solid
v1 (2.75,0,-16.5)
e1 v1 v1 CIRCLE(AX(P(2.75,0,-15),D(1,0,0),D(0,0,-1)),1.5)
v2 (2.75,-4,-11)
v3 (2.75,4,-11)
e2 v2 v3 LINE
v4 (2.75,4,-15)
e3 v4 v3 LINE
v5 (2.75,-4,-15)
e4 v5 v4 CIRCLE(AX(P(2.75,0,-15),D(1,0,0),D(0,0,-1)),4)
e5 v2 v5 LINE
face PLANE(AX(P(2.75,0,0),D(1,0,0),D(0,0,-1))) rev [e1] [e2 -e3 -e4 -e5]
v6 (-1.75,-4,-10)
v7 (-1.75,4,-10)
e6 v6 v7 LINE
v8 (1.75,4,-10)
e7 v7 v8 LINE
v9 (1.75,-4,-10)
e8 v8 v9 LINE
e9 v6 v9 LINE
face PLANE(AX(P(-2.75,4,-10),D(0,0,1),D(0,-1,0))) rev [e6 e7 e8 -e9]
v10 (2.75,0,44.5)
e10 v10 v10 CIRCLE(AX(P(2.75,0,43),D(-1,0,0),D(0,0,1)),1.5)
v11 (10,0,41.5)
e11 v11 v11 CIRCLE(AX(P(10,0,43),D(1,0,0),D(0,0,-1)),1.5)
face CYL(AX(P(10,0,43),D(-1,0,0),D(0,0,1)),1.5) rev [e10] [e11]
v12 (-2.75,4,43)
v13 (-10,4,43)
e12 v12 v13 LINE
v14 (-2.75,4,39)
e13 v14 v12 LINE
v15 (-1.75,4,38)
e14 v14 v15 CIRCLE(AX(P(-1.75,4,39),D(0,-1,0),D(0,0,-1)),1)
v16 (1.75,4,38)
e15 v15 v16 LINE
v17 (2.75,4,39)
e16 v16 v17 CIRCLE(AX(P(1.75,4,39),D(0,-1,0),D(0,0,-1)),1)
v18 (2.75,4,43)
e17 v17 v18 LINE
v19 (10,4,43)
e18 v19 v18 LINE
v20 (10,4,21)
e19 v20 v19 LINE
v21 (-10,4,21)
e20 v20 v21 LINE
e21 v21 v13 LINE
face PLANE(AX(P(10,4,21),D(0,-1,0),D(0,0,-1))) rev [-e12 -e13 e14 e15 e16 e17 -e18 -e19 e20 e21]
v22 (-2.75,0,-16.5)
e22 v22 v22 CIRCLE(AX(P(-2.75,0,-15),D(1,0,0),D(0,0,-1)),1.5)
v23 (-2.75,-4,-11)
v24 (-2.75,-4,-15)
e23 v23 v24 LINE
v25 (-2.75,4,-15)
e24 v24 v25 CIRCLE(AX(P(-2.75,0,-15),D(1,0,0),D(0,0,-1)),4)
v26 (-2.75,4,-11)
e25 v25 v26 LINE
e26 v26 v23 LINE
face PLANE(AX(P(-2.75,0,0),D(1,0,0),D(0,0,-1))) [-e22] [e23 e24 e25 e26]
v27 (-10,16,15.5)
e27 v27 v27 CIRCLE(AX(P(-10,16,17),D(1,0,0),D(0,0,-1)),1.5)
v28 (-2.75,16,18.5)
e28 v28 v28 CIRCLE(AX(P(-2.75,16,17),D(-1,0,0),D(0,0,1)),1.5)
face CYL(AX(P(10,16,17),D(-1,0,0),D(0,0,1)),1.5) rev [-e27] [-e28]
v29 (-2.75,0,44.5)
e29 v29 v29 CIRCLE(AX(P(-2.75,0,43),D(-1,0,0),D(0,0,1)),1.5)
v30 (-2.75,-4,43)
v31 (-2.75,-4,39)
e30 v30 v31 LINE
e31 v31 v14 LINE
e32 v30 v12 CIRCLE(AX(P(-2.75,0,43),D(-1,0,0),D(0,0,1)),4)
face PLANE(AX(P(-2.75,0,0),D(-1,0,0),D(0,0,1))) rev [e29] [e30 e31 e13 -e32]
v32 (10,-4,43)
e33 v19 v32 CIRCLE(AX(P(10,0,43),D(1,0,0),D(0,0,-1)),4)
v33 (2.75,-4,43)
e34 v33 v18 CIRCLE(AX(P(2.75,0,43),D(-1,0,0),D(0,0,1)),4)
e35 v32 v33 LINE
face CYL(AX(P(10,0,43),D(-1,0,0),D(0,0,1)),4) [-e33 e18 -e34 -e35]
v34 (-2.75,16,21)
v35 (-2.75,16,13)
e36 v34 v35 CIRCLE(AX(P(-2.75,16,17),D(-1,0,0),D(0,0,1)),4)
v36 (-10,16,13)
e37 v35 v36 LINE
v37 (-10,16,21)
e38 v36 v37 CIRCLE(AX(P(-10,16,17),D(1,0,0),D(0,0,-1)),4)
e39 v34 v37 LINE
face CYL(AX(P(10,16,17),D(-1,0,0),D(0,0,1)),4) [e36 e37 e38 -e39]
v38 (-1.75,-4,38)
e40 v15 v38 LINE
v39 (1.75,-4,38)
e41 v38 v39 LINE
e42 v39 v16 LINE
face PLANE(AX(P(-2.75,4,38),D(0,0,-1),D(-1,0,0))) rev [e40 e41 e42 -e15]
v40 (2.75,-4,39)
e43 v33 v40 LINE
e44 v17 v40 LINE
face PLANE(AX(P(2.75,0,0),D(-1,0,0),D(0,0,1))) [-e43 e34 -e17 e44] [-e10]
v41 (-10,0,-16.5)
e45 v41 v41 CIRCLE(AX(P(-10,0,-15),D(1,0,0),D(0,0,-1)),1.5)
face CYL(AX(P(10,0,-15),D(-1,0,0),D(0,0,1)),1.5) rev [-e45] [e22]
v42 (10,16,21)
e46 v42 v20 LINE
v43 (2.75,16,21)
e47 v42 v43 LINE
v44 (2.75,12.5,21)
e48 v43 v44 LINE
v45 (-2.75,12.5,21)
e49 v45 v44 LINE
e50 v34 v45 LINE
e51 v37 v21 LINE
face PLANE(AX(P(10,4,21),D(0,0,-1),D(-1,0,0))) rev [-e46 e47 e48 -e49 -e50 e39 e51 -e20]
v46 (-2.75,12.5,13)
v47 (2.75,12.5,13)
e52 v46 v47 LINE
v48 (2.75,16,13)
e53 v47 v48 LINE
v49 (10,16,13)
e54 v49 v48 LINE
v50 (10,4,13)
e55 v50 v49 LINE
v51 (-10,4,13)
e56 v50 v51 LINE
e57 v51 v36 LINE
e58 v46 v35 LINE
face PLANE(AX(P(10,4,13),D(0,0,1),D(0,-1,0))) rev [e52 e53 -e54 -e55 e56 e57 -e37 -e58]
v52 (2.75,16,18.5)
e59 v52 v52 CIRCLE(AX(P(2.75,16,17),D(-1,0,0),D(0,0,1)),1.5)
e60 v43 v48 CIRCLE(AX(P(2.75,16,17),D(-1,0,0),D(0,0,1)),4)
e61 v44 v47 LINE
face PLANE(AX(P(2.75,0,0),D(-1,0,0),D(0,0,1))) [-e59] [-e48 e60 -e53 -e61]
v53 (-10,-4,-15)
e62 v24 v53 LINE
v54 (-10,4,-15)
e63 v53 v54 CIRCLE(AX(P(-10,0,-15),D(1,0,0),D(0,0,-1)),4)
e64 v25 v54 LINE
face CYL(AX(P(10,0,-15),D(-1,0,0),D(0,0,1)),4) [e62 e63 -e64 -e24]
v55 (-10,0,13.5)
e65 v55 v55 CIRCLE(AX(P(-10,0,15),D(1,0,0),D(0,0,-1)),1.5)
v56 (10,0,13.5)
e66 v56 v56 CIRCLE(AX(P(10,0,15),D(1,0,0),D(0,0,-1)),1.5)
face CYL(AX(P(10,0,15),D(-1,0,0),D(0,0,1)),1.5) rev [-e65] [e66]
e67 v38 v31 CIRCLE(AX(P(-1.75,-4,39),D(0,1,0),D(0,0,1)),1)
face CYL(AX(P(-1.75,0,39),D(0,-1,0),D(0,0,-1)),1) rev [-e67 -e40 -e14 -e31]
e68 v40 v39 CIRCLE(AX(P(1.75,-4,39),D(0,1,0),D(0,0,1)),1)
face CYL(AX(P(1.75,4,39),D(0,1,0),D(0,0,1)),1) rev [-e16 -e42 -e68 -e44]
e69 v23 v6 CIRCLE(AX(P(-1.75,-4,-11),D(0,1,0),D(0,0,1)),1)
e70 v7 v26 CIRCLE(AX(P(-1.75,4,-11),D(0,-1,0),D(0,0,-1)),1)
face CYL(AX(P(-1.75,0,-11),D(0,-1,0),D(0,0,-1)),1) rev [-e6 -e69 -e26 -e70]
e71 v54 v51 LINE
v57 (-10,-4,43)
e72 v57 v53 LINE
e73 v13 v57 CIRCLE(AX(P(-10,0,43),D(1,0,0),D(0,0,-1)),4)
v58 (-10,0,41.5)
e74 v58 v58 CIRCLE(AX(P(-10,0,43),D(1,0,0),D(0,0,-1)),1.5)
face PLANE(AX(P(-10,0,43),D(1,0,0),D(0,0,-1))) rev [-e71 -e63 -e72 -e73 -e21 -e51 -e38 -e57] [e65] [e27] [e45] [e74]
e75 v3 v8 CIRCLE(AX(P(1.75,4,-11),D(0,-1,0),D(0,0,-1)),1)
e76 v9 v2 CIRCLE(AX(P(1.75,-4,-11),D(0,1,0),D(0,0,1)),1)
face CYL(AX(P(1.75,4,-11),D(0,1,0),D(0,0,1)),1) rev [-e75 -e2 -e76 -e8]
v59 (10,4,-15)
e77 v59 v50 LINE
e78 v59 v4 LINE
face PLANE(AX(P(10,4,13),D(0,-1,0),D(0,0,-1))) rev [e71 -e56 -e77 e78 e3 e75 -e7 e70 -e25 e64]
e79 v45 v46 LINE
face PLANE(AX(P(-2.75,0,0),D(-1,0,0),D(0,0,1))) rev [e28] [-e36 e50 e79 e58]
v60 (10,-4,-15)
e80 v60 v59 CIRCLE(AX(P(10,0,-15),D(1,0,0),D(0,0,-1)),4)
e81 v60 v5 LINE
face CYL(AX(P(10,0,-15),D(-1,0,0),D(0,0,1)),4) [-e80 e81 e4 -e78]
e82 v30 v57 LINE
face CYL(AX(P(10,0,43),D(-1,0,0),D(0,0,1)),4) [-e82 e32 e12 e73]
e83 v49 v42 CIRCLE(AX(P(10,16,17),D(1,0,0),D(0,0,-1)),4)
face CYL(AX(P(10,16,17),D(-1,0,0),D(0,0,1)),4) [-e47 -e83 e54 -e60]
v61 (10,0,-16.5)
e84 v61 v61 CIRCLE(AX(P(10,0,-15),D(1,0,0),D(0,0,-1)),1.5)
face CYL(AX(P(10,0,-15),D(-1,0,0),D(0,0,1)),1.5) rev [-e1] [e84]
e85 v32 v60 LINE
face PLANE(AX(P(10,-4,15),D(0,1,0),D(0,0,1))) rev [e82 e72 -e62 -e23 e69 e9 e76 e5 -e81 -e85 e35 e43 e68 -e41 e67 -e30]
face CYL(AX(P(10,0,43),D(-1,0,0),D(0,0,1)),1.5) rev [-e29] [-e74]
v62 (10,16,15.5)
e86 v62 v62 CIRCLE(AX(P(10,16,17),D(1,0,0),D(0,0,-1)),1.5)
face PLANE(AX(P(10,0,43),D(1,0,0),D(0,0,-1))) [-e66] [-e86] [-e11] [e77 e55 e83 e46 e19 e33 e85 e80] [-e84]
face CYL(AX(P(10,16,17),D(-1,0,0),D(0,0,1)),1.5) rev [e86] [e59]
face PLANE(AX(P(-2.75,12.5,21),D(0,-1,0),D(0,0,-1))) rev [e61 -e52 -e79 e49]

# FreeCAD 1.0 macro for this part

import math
import FreeCAD as App
import Part
import Sketcher
from FreeCAD import Vector
Q = App.Units.Quantity


def edges_at(feature, points):
    """Names of the edges that pass closest to the given points."""
    edges = feature.Shape.Edges
    near = lambda p: min(range(len(edges)), key=lambda i: edges[i].distToShape(Part.Vertex(*p))[0])
    return sorted({f"Edge{near(p) + 1}" for p in points})


def add_polygon(sketch, points):
    """Adds a closed chain of lines whose ends are joined by coincident constraints."""
    first, n = sketch.GeometryCount, len(points)
    for a, b in zip(points, points[1:] + points[:1]):
        sketch.addGeometry(Part.LineSegment(App.Vector(*a, 0), App.Vector(*b, 0)), False)
    for i in range(n):
        sketch.addConstraint(Sketcher.Constraint("Coincident", first + i, 2, first + (i + 1) % n, 1))

doc = App.newDocument("Part")
body = doc.addObject("PartDesign::Body", "Body")

# Sketch on YZ plane
sketch1 = body.newObject("Sketcher::SketchObject", "Sketch")
sketch1.AttachmentSupport = (doc.getObject("YZ_Plane"), [""])
sketch1.MapMode = "FlatFace"
sketch1.addGeometry([
    Part.ArcOfCircle(Part.Circle(Vector(0, -15, 0), Vector(0, 0, 1), 4), math.radians(180), math.radians(360)),  # 0
    Part.LineSegment(Vector(4, -15, 0), Vector(4, 13, 0)),  # 1
    Part.LineSegment(Vector(4, 13, 0), Vector(16, 13, 0)),  # 2
    Part.ArcOfCircle(Part.Circle(Vector(16, 17, 0), Vector(0, 0, 1), 4), math.radians(-90), math.radians(90)),  # 3
    Part.LineSegment(Vector(16, 21, 0), Vector(4, 21, 0)),  # 4
    Part.LineSegment(Vector(4, 21, 0), Vector(4, 43, 0)),  # 5
    Part.ArcOfCircle(Part.Circle(Vector(0, 43, 0), Vector(0, 0, 1), 4), math.radians(0), math.radians(180)),  # 6
    Part.LineSegment(Vector(-4, 43, 0), Vector(-4, -15, 0)),  # 7
    Part.Circle(Vector(0, 43, 0), Vector(0, 0, 1), 1.5),  # 8
    Part.Circle(Vector(0, 15, 0), Vector(0, 0, 1), 1.5),  # 9
    Part.Circle(Vector(0, -15, 0), Vector(0, 0, 1), 1.5),  # 10
    Part.Circle(Vector(16, 17, 0), Vector(0, 0, 1), 1.5),  # 11
], False)
sketch1.addConstraint([
    Sketcher.Constraint("Tangent", 0, 2, 1, 1),
    Sketcher.Constraint("Coincident", 1, 2, 2, 1),
    Sketcher.Constraint("Tangent", 2, 2, 3, 1),
    Sketcher.Constraint("Tangent", 3, 2, 4, 1),
    Sketcher.Constraint("Coincident", 4, 2, 5, 1),
    Sketcher.Constraint("Tangent", 5, 2, 6, 1),
    Sketcher.Constraint("Tangent", 6, 2, 7, 1),
    Sketcher.Constraint("Tangent", 7, 2, 0, 1),
    Sketcher.Constraint("Vertical", 1),
    Sketcher.Constraint("Horizontal", 2),
    Sketcher.Constraint("Horizontal", 4),
    Sketcher.Constraint("Vertical", 5),
    Sketcher.Constraint("Vertical", 7),
    Sketcher.Constraint("Coincident", 8, 3, 6, 3),
    Sketcher.Constraint("Coincident", 10, 3, 0, 3),
    Sketcher.Constraint("Coincident", 11, 3, 3, 3),
    Sketcher.Constraint("Equal", 0, 3),
    Sketcher.Constraint("Equal", 3, 6),
    Sketcher.Constraint("Equal", 8, 9),
    Sketcher.Constraint("Equal", 9, 10),
    Sketcher.Constraint("Equal", 10, 11),
    Sketcher.Constraint("Symmetric", 0, 3, 9, 3, -1, 1),
    Sketcher.Constraint("PointOnObject", 0, 3, -2),
    Sketcher.Constraint("Diameter", 8, Q("3 mm")),
    Sketcher.Constraint("Radius", 0, Q("4 mm")),
    Sketcher.Constraint("DistanceX", 2, 1, 2, 2, Q("12 mm")),
    Sketcher.Constraint("DistanceY", 1, 1, 1, 2, Q("28 mm")),
    Sketcher.Constraint("DistanceY", 5, 1, 5, 2, Q("22 mm")),
    Sketcher.Constraint("DistanceY", 0, 3, -1, 1, Q("15 mm")),
])
pad1 = body.newObject("PartDesign::Pad", "Pad")
pad1.Profile = sketch1
pad1.Length = 20
pad1.Midplane = True

# Sketch on YZ plane
sketch2 = body.newObject("Sketcher::SketchObject", "Sketch001")
sketch2.AttachmentSupport = (doc.getObject("YZ_Plane"), [""])
sketch2.MapMode = "FlatFace"
add_polygon(sketch2, [(20, 21), (12.5, 21), (12.5, 13), (20, 13)])  # lines 0-3
add_polygon(sketch2, [(4, -10), (-4, -10), (-4, -19), (4, -19)])  # lines 4-7
add_polygon(sketch2, [(4, 47), (-4, 47), (-4, 38), (4, 38)])  # lines 8-11
sketch2.addConstraint([
    Sketcher.Constraint("Horizontal", 0),
    Sketcher.Constraint("Vertical", 1),
    Sketcher.Constraint("Horizontal", 2),
    Sketcher.Constraint("Vertical", 3),
    Sketcher.Constraint("Horizontal", 4),
    Sketcher.Constraint("Vertical", 5),
    Sketcher.Constraint("Horizontal", 6),
    Sketcher.Constraint("Vertical", 7),
    Sketcher.Constraint("Horizontal", 8),
    Sketcher.Constraint("Vertical", 9),
    Sketcher.Constraint("Horizontal", 10),
    Sketcher.Constraint("Vertical", 11),
    Sketcher.Constraint("Vertical", 5, 2, 8, 2),
    Sketcher.Constraint("Vertical", 7, 2, 10, 2),
    Sketcher.Constraint("Equal", 10, 1),
    Sketcher.Constraint("Equal", 7, 9),
    Sketcher.Constraint("DistanceX", 4, 2, 4, 1, Q("8 mm")),
    Sketcher.Constraint("DistanceY", 5, 2, 5, 1, Q("9 mm")),
    Sketcher.Constraint("DistanceX", 0, 2, 0, 1, Q("7.5 mm")),
    Sketcher.Constraint("DistanceY", -1, 1, 0, 2, Q("21 mm")),
    Sketcher.Constraint("DistanceX", -1, 1, 2, 2, Q("20 mm")),
    Sketcher.Constraint("DistanceX", 4, 2, -1, 1, Q("4 mm")),
    Sketcher.Constraint("DistanceY", 4, 2, -1, 1, Q("10 mm")),
    Sketcher.Constraint("DistanceY", -1, 1, 8, 2, Q("47 mm")),
])
pocket1 = body.newObject("PartDesign::Pocket", "Pocket")
pocket1.Profile = sketch2
pocket1.Length = 5.5
pocket1.Midplane = True
doc.recompute()

fillet = body.newObject("PartDesign::Fillet", "Fillet")
fillet.Base = (pocket1, edges_at(pocket1, [
    (2.75, 0, 38),
    (-2.75, 0, 38),
    (2.75, 0, -10),
    (-2.75, 0, -10),
]))
fillet.Radius = 1

doc.recompute()
